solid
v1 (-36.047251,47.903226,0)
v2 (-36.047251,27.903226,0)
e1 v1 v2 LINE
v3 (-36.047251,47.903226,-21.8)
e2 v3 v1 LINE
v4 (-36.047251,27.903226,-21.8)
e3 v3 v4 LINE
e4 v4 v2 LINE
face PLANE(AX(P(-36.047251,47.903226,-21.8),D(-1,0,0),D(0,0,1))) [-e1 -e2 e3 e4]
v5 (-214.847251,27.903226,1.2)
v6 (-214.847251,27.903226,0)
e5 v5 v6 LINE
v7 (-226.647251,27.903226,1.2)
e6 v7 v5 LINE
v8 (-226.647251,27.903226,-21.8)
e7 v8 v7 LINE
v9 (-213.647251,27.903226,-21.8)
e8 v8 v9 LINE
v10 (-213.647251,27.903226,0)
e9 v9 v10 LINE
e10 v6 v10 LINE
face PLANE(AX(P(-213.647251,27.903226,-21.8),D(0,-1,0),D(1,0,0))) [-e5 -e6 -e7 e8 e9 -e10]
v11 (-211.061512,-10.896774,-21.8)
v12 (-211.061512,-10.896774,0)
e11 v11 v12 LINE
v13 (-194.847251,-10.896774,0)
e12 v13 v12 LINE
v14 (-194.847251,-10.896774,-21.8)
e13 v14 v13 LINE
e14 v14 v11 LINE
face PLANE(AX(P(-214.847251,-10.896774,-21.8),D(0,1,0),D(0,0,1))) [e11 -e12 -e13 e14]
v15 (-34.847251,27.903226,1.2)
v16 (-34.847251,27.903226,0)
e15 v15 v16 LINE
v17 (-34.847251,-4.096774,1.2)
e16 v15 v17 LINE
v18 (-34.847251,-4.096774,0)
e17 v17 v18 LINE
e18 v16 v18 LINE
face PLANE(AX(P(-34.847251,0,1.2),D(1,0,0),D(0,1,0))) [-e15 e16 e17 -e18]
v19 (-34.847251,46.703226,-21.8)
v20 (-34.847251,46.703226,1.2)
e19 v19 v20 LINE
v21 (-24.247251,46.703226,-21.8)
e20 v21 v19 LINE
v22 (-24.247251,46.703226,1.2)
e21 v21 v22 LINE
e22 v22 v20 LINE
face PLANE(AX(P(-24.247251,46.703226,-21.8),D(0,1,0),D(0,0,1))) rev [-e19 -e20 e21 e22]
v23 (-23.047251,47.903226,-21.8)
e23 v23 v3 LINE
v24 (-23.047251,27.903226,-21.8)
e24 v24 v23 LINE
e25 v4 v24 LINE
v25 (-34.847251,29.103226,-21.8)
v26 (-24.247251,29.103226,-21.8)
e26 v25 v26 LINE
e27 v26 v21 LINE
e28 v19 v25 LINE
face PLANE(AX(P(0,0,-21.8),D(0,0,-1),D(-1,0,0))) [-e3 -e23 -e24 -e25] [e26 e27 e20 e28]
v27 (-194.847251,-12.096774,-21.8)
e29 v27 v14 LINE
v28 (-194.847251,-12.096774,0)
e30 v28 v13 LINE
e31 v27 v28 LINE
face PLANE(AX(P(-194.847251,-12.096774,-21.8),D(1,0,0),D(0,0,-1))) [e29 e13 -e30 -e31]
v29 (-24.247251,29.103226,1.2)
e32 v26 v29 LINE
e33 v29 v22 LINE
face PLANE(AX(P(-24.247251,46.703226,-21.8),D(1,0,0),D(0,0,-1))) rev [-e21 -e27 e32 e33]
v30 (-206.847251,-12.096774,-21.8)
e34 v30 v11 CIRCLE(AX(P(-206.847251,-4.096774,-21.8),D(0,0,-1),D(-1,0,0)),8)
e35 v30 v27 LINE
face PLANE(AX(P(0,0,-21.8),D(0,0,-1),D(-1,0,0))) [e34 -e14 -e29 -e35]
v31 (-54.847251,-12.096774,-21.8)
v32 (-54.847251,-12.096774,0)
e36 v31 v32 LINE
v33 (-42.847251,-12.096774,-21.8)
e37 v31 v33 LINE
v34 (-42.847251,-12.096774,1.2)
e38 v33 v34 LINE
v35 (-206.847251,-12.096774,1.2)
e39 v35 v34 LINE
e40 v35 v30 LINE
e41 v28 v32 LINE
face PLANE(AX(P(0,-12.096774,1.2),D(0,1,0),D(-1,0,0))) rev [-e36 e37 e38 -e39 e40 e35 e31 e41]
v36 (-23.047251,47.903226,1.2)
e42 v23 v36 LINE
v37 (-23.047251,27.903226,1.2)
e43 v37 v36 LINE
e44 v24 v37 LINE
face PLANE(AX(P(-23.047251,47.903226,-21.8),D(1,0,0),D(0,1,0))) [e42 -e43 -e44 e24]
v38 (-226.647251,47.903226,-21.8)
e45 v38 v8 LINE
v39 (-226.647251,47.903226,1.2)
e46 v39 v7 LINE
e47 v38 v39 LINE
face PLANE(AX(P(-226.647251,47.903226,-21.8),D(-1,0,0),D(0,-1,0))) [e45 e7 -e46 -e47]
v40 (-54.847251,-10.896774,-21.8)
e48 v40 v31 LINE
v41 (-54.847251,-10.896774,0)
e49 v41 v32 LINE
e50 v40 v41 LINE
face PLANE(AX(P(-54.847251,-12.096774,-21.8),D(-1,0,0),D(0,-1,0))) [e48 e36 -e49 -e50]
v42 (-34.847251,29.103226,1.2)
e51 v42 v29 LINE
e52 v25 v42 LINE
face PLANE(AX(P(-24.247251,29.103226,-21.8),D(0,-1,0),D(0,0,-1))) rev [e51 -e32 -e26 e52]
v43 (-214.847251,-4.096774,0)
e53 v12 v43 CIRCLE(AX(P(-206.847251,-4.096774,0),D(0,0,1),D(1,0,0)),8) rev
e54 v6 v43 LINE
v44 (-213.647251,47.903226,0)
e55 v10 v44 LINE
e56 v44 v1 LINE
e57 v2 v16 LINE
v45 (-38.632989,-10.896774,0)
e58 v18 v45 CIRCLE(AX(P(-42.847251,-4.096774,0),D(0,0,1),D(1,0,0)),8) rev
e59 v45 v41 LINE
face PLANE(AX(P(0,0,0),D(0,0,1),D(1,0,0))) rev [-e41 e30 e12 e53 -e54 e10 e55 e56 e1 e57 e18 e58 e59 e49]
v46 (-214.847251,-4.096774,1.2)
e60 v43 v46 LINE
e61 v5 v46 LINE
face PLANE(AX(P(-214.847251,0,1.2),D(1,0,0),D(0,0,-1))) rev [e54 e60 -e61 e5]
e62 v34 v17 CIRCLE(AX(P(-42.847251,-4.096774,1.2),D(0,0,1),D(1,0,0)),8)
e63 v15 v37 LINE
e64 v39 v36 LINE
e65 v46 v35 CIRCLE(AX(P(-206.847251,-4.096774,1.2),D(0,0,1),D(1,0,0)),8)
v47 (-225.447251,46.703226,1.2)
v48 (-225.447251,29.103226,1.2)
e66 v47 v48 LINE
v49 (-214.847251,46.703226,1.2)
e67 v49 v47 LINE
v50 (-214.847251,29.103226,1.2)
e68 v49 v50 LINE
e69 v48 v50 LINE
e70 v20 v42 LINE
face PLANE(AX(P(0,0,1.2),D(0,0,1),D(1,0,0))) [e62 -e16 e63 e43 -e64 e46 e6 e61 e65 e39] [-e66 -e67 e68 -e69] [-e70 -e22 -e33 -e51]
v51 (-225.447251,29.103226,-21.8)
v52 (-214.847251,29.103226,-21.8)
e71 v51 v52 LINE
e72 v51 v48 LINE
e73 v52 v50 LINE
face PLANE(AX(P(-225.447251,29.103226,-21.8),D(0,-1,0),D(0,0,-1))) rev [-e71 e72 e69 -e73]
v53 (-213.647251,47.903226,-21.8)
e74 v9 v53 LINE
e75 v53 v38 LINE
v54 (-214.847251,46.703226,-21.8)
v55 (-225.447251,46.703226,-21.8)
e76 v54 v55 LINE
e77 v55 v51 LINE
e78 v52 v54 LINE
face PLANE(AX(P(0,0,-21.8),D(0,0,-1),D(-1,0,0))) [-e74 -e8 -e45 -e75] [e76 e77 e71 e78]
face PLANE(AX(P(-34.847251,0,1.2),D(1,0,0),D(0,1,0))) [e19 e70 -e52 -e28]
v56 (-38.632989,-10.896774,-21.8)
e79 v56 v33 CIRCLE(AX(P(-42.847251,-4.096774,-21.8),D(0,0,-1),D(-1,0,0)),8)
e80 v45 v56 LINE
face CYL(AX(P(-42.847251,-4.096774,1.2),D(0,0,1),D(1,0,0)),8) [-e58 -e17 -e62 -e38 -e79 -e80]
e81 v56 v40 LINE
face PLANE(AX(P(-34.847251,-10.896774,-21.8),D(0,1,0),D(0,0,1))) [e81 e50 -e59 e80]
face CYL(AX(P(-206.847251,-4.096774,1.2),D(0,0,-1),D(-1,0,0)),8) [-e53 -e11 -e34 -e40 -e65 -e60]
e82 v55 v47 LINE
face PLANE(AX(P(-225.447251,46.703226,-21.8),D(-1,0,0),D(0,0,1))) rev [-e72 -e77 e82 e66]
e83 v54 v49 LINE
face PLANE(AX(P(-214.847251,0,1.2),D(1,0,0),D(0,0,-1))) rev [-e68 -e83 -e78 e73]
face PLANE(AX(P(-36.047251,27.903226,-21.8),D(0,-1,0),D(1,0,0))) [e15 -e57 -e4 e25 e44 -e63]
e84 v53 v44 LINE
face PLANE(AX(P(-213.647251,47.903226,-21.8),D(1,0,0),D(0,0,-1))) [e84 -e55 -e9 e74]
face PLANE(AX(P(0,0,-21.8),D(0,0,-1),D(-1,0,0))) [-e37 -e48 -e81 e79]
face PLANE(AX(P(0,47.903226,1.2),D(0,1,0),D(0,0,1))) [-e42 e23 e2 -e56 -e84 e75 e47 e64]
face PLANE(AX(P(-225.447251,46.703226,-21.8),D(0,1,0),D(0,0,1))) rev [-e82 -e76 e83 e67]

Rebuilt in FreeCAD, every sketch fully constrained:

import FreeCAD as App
import Part
import Sketcher
Q = App.Units.Quantity


def edges_at(feature, points):
    """Names of the edges that pass closest to the given points."""
    edges = feature.Shape.Edges
    near = lambda p: min(range(len(edges)), key=lambda i: edges[i].distToShape(Part.Vertex(*p))[0])
    return sorted({f"Edge{near(p) + 1}" for p in points})

doc = App.newDocument("Part")
params = doc.addObject("Spreadsheet::Sheet", "Params")
for row, (alias, value) in enumerate([
    ("sketch1_width", "180 mm"),
    ("sketch1_height", "60 mm"),
    ("pad1_length", "1.2 mm"),
    ("sketch2_width", "20 mm"),
    ("sketch2_width2", "13 mm"),
    ("sketch2_width3", "10.6 mm"),
    ("sketch2_height", "1.2 mm"),
    ("sketch2_height2", "17.6 mm"),
    ("pad2_length", "23 mm"),
    ("fillet_radius", "8 mm"),
], start=1):
    params.set(f"A{row}", alias)
    params.set(f"B{row}", "=" + value)
    params.setAlias(f"B{row}", alias)

body = doc.addObject("PartDesign::Body", "Body")

# Sketch on XY plane
sketch1 = doc.addObject("Sketcher::SketchObject", "Sketch")
body.addObject(sketch1)
sketch1.AttachmentSupport = (doc.XY_Plane, [""])
sketch1.MapMode = "FlatFace"
sketch1.addGeometry([
    Part.LineSegment(App.Vector(-215, 48, 0), App.Vector(-215, -12, 0)),
    Part.LineSegment(App.Vector(-215, -12, 0), App.Vector(-35, -12, 0)),
    Part.LineSegment(App.Vector(-35, -12, 0), App.Vector(-35, 48, 0)),
    Part.LineSegment(App.Vector(-35, 48, 0), App.Vector(-215, 48, 0)),
], False)
sketch1.addConstraint([
    Sketcher.Constraint("Coincident", 0, 2, 1, 1),
    Sketcher.Constraint("Coincident", 1, 2, 2, 1),
    Sketcher.Constraint("Coincident", 2, 2, 3, 1),
    Sketcher.Constraint("Coincident", 3, 2, 0, 1),
    Sketcher.Constraint("Vertical", 0),
    Sketcher.Constraint("Horizontal", 1),
    Sketcher.Constraint("Vertical", 2),
    Sketcher.Constraint("Horizontal", 3),
    Sketcher.Constraint("DistanceX", 1, 1, 1, 2, Q("180 mm")),
    Sketcher.Constraint("DistanceY", 0, 2, 0, 1, Q("60 mm")),
    Sketcher.Constraint("DistanceX", 0, 2, -1, 1, Q("214.847251 mm")),
    Sketcher.Constraint("DistanceY", 0, 2, -1, 1, Q("12.096774 mm")),
])
sketch1.setExpression("Constraints[8]", "Params.sketch1_width")
sketch1.setExpression("Constraints[9]", "Params.sketch1_height")
pad1 = doc.addObject("PartDesign::Pad", "Pad")
body.addObject(pad1)
pad1.Profile = sketch1
pad1.setExpression("Length", "Params.pad1_length")

# Sketch on XY plane
sketch2 = doc.addObject("Sketcher::SketchObject", "Sketch001")
body.addObject(sketch2)
sketch2.AttachmentSupport = (doc.XY_Plane, [""])
sketch2.MapMode = "FlatFace"
sketch2.AttachmentOffset = App.Placement(App.Vector(0, 0, 1.2), App.Rotation())
sketch2.addGeometry([
    Part.LineSegment(App.Vector(-214.8, -10.9, 0), App.Vector(-214.8, -12.1, 0)),  # 0
    Part.LineSegment(App.Vector(-214.8, -12.1, 0), App.Vector(-194.8, -12.1, 0)),  # 1
    Part.LineSegment(App.Vector(-194.8, -12.1, 0), App.Vector(-194.8, -10.9, 0)),  # 2
    Part.LineSegment(App.Vector(-194.8, -10.9, 0), App.Vector(-214.8, -10.9, 0)),  # 3
    Part.LineSegment(App.Vector(-226.6, 47.9, 0), App.Vector(-226.6, 27.9, 0)),  # 4
    Part.LineSegment(App.Vector(-226.6, 27.9, 0), App.Vector(-213.6, 27.9, 0)),  # 5
    Part.LineSegment(App.Vector(-213.6, 27.9, 0), App.Vector(-213.6, 47.9, 0)),  # 6
    Part.LineSegment(App.Vector(-213.6, 47.9, 0), App.Vector(-226.6, 47.9, 0)),  # 7
    Part.LineSegment(App.Vector(-214.8, 29.1, 0), App.Vector(-225.4, 29.1, 0)),  # 8
    Part.LineSegment(App.Vector(-225.4, 29.1, 0), App.Vector(-225.4, 46.7, 0)),  # 9
    Part.LineSegment(App.Vector(-225.4, 46.7, 0), App.Vector(-214.8, 46.7, 0)),  # 10
    Part.LineSegment(App.Vector(-214.8, 46.7, 0), App.Vector(-214.8, 29.1, 0)),  # 11
    Part.LineSegment(App.Vector(-36, 47.9, 0), App.Vector(-36, 27.9, 0)),  # 12
    Part.LineSegment(App.Vector(-36, 27.9, 0), App.Vector(-23, 27.9, 0)),  # 13
    Part.LineSegment(App.Vector(-23, 27.9, 0), App.Vector(-23, 47.9, 0)),  # 14
    Part.LineSegment(App.Vector(-23, 47.9, 0), App.Vector(-36, 47.9, 0)),  # 15
    Part.LineSegment(App.Vector(-24.2, 29.1, 0), App.Vector(-34.8, 29.1, 0)),  # 16
    Part.LineSegment(App.Vector(-34.8, 29.1, 0), App.Vector(-34.8, 46.7, 0)),  # 17
    Part.LineSegment(App.Vector(-34.8, 46.7, 0), App.Vector(-24.2, 46.7, 0)),  # 18
    Part.LineSegment(App.Vector(-24.2, 46.7, 0), App.Vector(-24.2, 29.1, 0)),  # 19
    Part.LineSegment(App.Vector(-54.8, -10.9, 0), App.Vector(-54.8, -12.1, 0)),  # 20
    Part.LineSegment(App.Vector(-54.8, -12.1, 0), App.Vector(-34.8, -12.1, 0)),  # 21
    Part.LineSegment(App.Vector(-34.8, -12.1, 0), App.Vector(-34.8, -10.9, 0)),  # 22
    Part.LineSegment(App.Vector(-34.8, -10.9, 0), App.Vector(-54.8, -10.9, 0)),  # 23
], False)
sketch2.addConstraint([
    Sketcher.Constraint("Coincident", 0, 2, 1, 1),
    Sketcher.Constraint("Coincident", 1, 2, 2, 1),
    Sketcher.Constraint("Coincident", 2, 2, 3, 1),
    Sketcher.Constraint("Coincident", 3, 2, 0, 1),
    Sketcher.Constraint("Coincident", 4, 2, 5, 1),
    Sketcher.Constraint("Coincident", 5, 2, 6, 1),
    Sketcher.Constraint("Coincident", 6, 2, 7, 1),
    Sketcher.Constraint("Coincident", 7, 2, 4, 1),
    Sketcher.Constraint("Coincident", 8, 2, 9, 1),
    Sketcher.Constraint("Coincident", 9, 2, 10, 1),
    Sketcher.Constraint("Coincident", 10, 2, 11, 1),
    Sketcher.Constraint("Coincident", 11, 2, 8, 1),
    Sketcher.Constraint("Coincident", 12, 2, 13, 1),
    Sketcher.Constraint("Coincident", 13, 2, 14, 1),
    Sketcher.Constraint("Coincident", 14, 2, 15, 1),
    Sketcher.Constraint("Coincident", 15, 2, 12, 1),
    Sketcher.Constraint("Coincident", 16, 2, 17, 1),
    Sketcher.Constraint("Coincident", 17, 2, 18, 1),
    Sketcher.Constraint("Coincident", 18, 2, 19, 1),
    Sketcher.Constraint("Coincident", 19, 2, 16, 1),
    Sketcher.Constraint("Coincident", 20, 2, 21, 1),
    Sketcher.Constraint("Coincident", 21, 2, 22, 1),
    Sketcher.Constraint("Coincident", 22, 2, 23, 1),
    Sketcher.Constraint("Coincident", 23, 2, 20, 1),
    Sketcher.Constraint("Vertical", 0),
    Sketcher.Constraint("Horizontal", 1),
    Sketcher.Constraint("Vertical", 2),
    Sketcher.Constraint("Horizontal", 3),
    Sketcher.Constraint("Vertical", 4),
    Sketcher.Constraint("Horizontal", 5),
    Sketcher.Constraint("Vertical", 6),
    Sketcher.Constraint("Horizontal", 7),
    Sketcher.Constraint("Horizontal", 8),
    Sketcher.Constraint("Vertical", 9),
    Sketcher.Constraint("Horizontal", 10),
    Sketcher.Constraint("Vertical", 11),
    Sketcher.Constraint("Vertical", 12),
    Sketcher.Constraint("Horizontal", 13),
    Sketcher.Constraint("Vertical", 14),
    Sketcher.Constraint("Horizontal", 15),
    Sketcher.Constraint("Horizontal", 16),
    Sketcher.Constraint("Vertical", 17),
    Sketcher.Constraint("Horizontal", 18),
    Sketcher.Constraint("Vertical", 19),
    Sketcher.Constraint("Vertical", 20),
    Sketcher.Constraint("Horizontal", 21),
    Sketcher.Constraint("Vertical", 22),
    Sketcher.Constraint("Horizontal", 23),
    Sketcher.Constraint("Horizontal", 5, 2, 12, 2),
    Sketcher.Constraint("Horizontal", 7, 2, 14, 2),
    Sketcher.Constraint("Horizontal", 11, 2, 16, 2),
    Sketcher.Constraint("Horizontal", 10, 2, 17, 2),
    Sketcher.Constraint("Horizontal", 1, 2, 20, 2),
    Sketcher.Constraint("Horizontal", 3, 2, 22, 2),
    Sketcher.Constraint("Vertical", 3, 2, 10, 2),
    Sketcher.Constraint("Vertical", 17, 2, 21, 2),
    Sketcher.Constraint("Equal", 7, 13),
    Sketcher.Constraint("Equal", 10, 16),
    Sketcher.Constraint("Equal", 3, 21),
    Sketcher.Constraint("Equal", 23, 4),
    Sketcher.Constraint("DistanceX", 1, 1, 1, 2, Q("20 mm")),
    Sketcher.Constraint("DistanceX", 5, 1, 5, 2, Q("13 mm")),
    Sketcher.Constraint("DistanceX", 8, 2, 8, 1, Q("10.6 mm")),
    Sketcher.Constraint("DistanceY", 0, 2, 0, 1, Q("1.2 mm")),
    Sketcher.Constraint("DistanceY", 9, 1, 9, 2, Q("17.6 mm")),
    Sketcher.Constraint("DistanceY", 0, 2, 4, 2, Q("40 mm")),
    Sketcher.Constraint("DistanceY", 3, 2, 8, 2, Q("40 mm")),
    Sketcher.Constraint("DistanceX", 2, 2, 16, 2, Q("160 mm")),
    Sketcher.Constraint("DistanceX", 4, 2, 3, 2, Q("11.8 mm")),
    Sketcher.Constraint("DistanceX", 2, 2, 12, 2, Q("158.8 mm")),
    Sketcher.Constraint("DistanceX", 0, 2, -1, 1, Q("214.847251 mm")),
    Sketcher.Constraint("DistanceY", 0, 2, -1, 1, Q("12.096774 mm")),
])
sketch2.setExpression("Constraints[60]", "Params.sketch2_width")
sketch2.setExpression("Constraints[61]", "Params.sketch2_width2")
sketch2.setExpression("Constraints[62]", "Params.sketch2_width3")
sketch2.setExpression("Constraints[63]", "Params.sketch2_height")
sketch2.setExpression("Constraints[64]", "Params.sketch2_height2")
pad2 = doc.addObject("PartDesign::Pad", "Pad001")
body.addObject(pad2)
pad2.Profile = sketch2
pad2.setExpression("Length", "Params.pad2_length")
pad2.Reversed = True
doc.recompute()

fillet = doc.addObject("PartDesign::Fillet", "Fillet")
body.addObject(fillet)
fillet.Base = (pad2, edges_at(pad2, [(-34.847, -12.097, -10.3), (-214.847, -12.097, -10.3)]))
fillet.setExpression("Radius", "Params.fillet_radius")

doc.recompute()
